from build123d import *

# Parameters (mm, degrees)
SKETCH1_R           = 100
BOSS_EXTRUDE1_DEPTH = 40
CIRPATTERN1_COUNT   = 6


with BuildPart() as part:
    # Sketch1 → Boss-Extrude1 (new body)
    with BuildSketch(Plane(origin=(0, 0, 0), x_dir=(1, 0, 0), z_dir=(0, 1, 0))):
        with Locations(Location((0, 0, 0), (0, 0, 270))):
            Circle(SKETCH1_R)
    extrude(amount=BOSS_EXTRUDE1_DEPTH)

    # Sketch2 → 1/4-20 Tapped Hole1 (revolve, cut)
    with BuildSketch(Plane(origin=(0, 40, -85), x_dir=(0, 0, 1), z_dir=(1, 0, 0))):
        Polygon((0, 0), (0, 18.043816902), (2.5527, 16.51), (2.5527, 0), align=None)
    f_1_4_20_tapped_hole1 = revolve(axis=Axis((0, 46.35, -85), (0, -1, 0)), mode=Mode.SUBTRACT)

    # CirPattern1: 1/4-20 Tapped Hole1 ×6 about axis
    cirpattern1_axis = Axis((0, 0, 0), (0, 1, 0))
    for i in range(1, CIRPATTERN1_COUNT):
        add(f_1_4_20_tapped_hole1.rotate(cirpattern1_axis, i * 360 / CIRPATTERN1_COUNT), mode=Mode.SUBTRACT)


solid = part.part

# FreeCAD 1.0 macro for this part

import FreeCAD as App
import Part
import Sketcher

V = App.Vector
Q = App.Units.Quantity


def add_polygon(sketch, points):
    """Adds a closed chain of lines whose ends are joined by coincident constraints."""
    first, n = sketch.GeometryCount, len(points)
    for a, b in zip(points, points[1:] + points[:1]):
        sketch.addGeometry(Part.LineSegment(App.Vector(*a, 0), App.Vector(*b, 0)), False)
    for i in range(n):
        sketch.addConstraint(Sketcher.Constraint("Coincident", first + i, 2, first + (i + 1) % n, 1))

doc = App.newDocument("Part")
params = doc.addObject("Spreadsheet::Sheet", "Params")
for row, (alias, value) in enumerate([
    ("sketch1_diameter", "200 mm"),
    ("pad1_length", "40 mm"),
    ("sketch2_width", "16.51 mm"),
    ("groove_angle", "360 deg"),
], start=1):
    params.set(f"A{row}", alias)
    params.set(f"B{row}", "=" + value)
    params.setAlias(f"B{row}", alias)

body = doc.addObject("PartDesign::Body", "Body")

# Sketch on XZ plane
sketch1 = body.newObject("Sketcher::SketchObject", "Sketch")
sketch1.AttachmentSupport = (doc.getObject("XZ_Plane"), [""])
sketch1.MapMode = "FlatFace"
sketch1.addGeometry(Part.Circle(V(0, 0, 0), V(0, 0, 1), 100), False)
sketch1.addConstraint(Sketcher.Constraint("Coincident", 0, 3, -1, 1))
sketch1.addConstraint(Sketcher.Constraint("Diameter", 0, 200.0))
sketch1.setExpression("Constraints[1]", "Params.sketch1_diameter")
pad1 = body.newObject("PartDesign::Pad", "Pad")
pad1.Profile = sketch1
pad1.setExpression("Length", "Params.pad1_length")
pad1.Reversed = True

# Sketch on YZ plane
sketch2 = body.newObject("Sketcher::SketchObject", "Sketch001")
sketch2.AttachmentSupport = (doc.getObject("YZ_Plane"), [""])
sketch2.MapMode = "FlatFace"
add_polygon(sketch2, [(22, -85), (40, -85), (40, -82.4), (23.5, -82.4)])  # lines 0-3
sketch2.addGeometry(Part.LineSegment(V(40, -85, 0), V(22, -85, 0)), True)  # axis
sketch2.addConstraint(Sketcher.Constraint("Horizontal", 0))
sketch2.addConstraint(Sketcher.Constraint("Vertical", 1))
sketch2.addConstraint(Sketcher.Constraint("Horizontal", 2))
sketch2.addConstraint(Sketcher.Constraint("Horizontal", 4))
sketch2.addConstraint(Sketcher.Constraint("Coincident", 4, 1, 0, 2))
sketch2.addConstraint(Sketcher.Constraint("Equal", 0, 4))
sketch2.addConstraint(Sketcher.Constraint("Angle", 3, Q("-121 deg")))
sketch2.addConstraint(Sketcher.Constraint("DistanceX", -1, 1, 0, 2, 40.0))
sketch2.addConstraint(Sketcher.Constraint("DistanceY", 0, 2, -1, 1, 85.0))
sketch2.addConstraint(Sketcher.Constraint("DistanceX", 2, 2, 2, 1, 16.51))
sketch2.addConstraint(Sketcher.Constraint("DistanceY", 1, 1, 1, 2, 2.5527))
sketch2.setExpression("Constraints[13]", "Params.sketch2_width")
groove = body.newObject("PartDesign::Groove", "Groove")
groove.Profile = sketch2
groove.ReferenceAxis = (sketch2, ["Axis0"])
groove.setExpression("Angle", "Params.groove_angle")
doc.recompute()

polarpattern = body.newObject("PartDesign::PolarPattern", "PolarPattern")
polarpattern.Originals = [groove]
polarpattern.Axis = (doc.getObject("Y_Axis"), [""])
polarpattern.Angle = 360
polarpattern.Occurrences = 6
body.Tip = polarpattern

doc.recompute()
